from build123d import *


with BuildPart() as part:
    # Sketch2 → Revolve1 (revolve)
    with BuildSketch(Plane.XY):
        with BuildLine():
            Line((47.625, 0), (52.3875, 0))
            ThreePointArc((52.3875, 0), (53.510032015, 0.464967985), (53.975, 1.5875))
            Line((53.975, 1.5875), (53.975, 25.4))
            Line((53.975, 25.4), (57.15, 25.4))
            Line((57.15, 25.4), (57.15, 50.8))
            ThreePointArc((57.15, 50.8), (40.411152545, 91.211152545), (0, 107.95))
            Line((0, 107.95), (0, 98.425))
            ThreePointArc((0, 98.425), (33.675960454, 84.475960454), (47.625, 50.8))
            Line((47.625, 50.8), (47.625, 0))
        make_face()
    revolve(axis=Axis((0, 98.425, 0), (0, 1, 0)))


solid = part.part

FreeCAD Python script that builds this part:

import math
import FreeCAD as App
import Part
import Sketcher
Q = App.Units.Quantity

doc = App.newDocument("Part")
params = doc.addObject("Spreadsheet::Sheet", "Params")
for row, (alias, value) in enumerate([
    ("sketch1_height", "1 in"),
    ("sketch1_height2", "2 in"),
    ("sketch1_radius", "2.25 in"),
    ("sketch1_radius2", "0.0625 in"),
    ("sketch1_radius3", "1.875 in"),
    ("revolution_angle", "360 deg"),
], start=1):
    params.set(f"A{row}", alias)
    params.set(f"B{row}", "=" + value)
    params.setAlias(f"B{row}", alias)

body = doc.addObject("PartDesign::Body", "Body")

# Sketch on XY plane
sketch1 = body.newObject("Sketcher::SketchObject", "Sketch")
sketch1.AttachmentSupport = (doc.getObject("XY_Plane"), [""])
sketch1.MapMode = "FlatFace"
sketch1.addGeometry(Part.LineSegment(App.Vector(47.6, 0, 0), App.Vector(52.4, 0, 0)), False)
sketch1.addGeometry(Part.ArcOfCircle(Part.Circle(App.Vector(52.4, 1.6, 0), App.Vector(0, 0, 1), 1.6), math.radians(-90), math.radians(0)), False)
sketch1.addGeometry(Part.LineSegment(App.Vector(54, 1.6, 0), App.Vector(54, 25.4, 0)), False)
sketch1.addGeometry(Part.LineSegment(App.Vector(54, 25.4, 0), App.Vector(57.1, 25.4, 0)), False)
sketch1.addGeometry(Part.LineSegment(App.Vector(57.1, 25.4, 0), App.Vector(57.1, 50.8, 0)), False)
sketch1.addGeometry(Part.ArcOfCircle(Part.Circle(App.Vector(0, 50.8, 0), App.Vector(0, 0, 1), 57.1), math.radians(0), math.radians(90)), False)
sketch1.addGeometry(Part.LineSegment(App.Vector(0, 108, 0), App.Vector(0, 98.4, 0)), False)
sketch1.addGeometry(Part.ArcOfCircle(Part.Circle(App.Vector(0, 50.8, 0), App.Vector(0, 0, 1), 47.6), math.radians(0), math.radians(90)), False)
sketch1.addGeometry(Part.LineSegment(App.Vector(47.6, 50.8, 0), App.Vector(47.6, 0, 0)), False)
sketch1.addConstraint(Sketcher.Constraint("Tangent", 0, 2, 1, 1))
sketch1.addConstraint(Sketcher.Constraint("Tangent", 1, 2, 2, 1))
sketch1.addConstraint(Sketcher.Constraint("Coincident", 2, 2, 3, 1))
sketch1.addConstraint(Sketcher.Constraint("Coincident", 3, 2, 4, 1))
sketch1.addConstraint(Sketcher.Constraint("Tangent", 4, 2, 5, 1))
sketch1.addConstraint(Sketcher.Constraint("Coincident", 5, 2, 6, 1))
sketch1.addConstraint(Sketcher.Constraint("Coincident", 6, 2, 7, 2))
sketch1.addConstraint(Sketcher.Constraint("Tangent", 7, 1, 8, 1))
sketch1.addConstraint(Sketcher.Constraint("Coincident", 8, 2, 0, 1))
sketch1.addConstraint(Sketcher.Constraint("Horizontal", 0))
sketch1.addConstraint(Sketcher.Constraint("Vertical", 2))
sketch1.addConstraint(Sketcher.Constraint("Horizontal", 3))
sketch1.addConstraint(Sketcher.Constraint("Vertical", 4))
sketch1.addConstraint(Sketcher.Constraint("Vertical", 6))
sketch1.addConstraint(Sketcher.Constraint("Vertical", 8))
sketch1.addConstraint(Sketcher.Constraint("Coincident", 7, 3, 5, 3))
sketch1.addConstraint(Sketcher.Constraint("PointOnObject", 5, 3, -2))
sketch1.addConstraint(Sketcher.Constraint("PointOnObject", 0, 2, -1))
sketch1.addConstraint(Sketcher.Constraint("PointOnObject", 5, 2, -2))
sketch1.addConstraint(Sketcher.Constraint("DistanceY", 4, 1, 4, 2, Q("1 in")))
sketch1.addConstraint(Sketcher.Constraint("DistanceY", 8, 2, 8, 1, Q("2 in")))
sketch1.addConstraint(Sketcher.Constraint("Radius", 5, Q("2.25 in")))
sketch1.addConstraint(Sketcher.Constraint("Radius", 1, Q("0.0625 in")))
sketch1.addConstraint(Sketcher.Constraint("Radius", 7, Q("1.875 in")))
sketch1.addConstraint(Sketcher.Constraint("DistanceX", 0, 1, 0, 2, Q("0.1875 in")))
sketch1.setExpression("Constraints[19]", "Params.sketch1_height")
sketch1.setExpression("Constraints[20]", "Params.sketch1_height2")
sketch1.setExpression("Constraints[21]", "Params.sketch1_radius")
sketch1.setExpression("Constraints[22]", "Params.sketch1_radius2")
sketch1.setExpression("Constraints[23]", "Params.sketch1_radius3")
revolution = body.newObject("PartDesign::Revolution", "Revolution")
revolution.Profile = sketch1
revolution.ReferenceAxis = (sketch1, ["V_Axis"])
revolution.setExpression("Angle", "Params.revolution_angle")

doc.recompute()
